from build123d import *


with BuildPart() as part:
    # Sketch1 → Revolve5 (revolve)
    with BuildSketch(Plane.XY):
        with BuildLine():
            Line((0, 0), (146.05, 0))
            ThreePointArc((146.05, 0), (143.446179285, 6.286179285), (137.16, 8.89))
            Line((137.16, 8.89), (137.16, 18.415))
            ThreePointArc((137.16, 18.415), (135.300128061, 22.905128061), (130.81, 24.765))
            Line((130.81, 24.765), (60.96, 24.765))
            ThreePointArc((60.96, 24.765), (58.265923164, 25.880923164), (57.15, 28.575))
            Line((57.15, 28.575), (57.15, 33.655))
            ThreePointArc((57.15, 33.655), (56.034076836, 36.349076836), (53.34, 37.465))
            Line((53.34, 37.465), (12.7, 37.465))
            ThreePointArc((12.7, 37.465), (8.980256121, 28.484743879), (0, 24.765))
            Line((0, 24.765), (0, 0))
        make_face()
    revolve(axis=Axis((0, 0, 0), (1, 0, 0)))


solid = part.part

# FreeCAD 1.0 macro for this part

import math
import FreeCAD as App
import Part
import Sketcher
from FreeCAD import Vector
Q = App.Units.Quantity

doc = App.newDocument("Part")
body = doc.addObject("PartDesign::Body", "Body")

# Sketch on XY plane
sketch1 = body.newObject("Sketcher::SketchObject", "Sketch")
sketch1.AttachmentSupport = (doc.getObject("XY_Plane"), [""])
sketch1.MapMode = "FlatFace"
sketch1.addGeometry([
    Part.LineSegment(Vector(0, 0, 0), Vector(146.05, 0, 0)),  # 0
    Part.ArcOfCircle(Part.Circle(Vector(137.16, 0, 0), Vector(0, 0, 1), 8.89), math.radians(0), math.radians(90)),  # 1
    Part.LineSegment(Vector(137.16, 8.89, 0), Vector(137.16, 18.415, 0)),  # 2
    Part.ArcOfCircle(Part.Circle(Vector(130.81, 18.415, 0), Vector(0, 0, 1), 6.35), math.radians(0), math.radians(90)),  # 3
    Part.LineSegment(Vector(130.81, 24.765, 0), Vector(60.96, 24.765, 0)),  # 4
    Part.ArcOfCircle(Part.Circle(Vector(60.96, 28.575, 0), Vector(0, 0, 1), 3.81), math.radians(-180), math.radians(-90)),  # 5
    Part.LineSegment(Vector(57.15, 28.575, 0), Vector(57.15, 33.655, 0)),  # 6
    Part.ArcOfCircle(Part.Circle(Vector(53.34, 33.655, 0), Vector(0, 0, 1), 3.81), math.radians(0), math.radians(90)),  # 7
    Part.LineSegment(Vector(53.34, 37.465, 0), Vector(12.7, 37.465, 0)),  # 8
    Part.ArcOfCircle(Part.Circle(Vector(0, 37.465, 0), Vector(0, 0, 1), 12.7), math.radians(-90), math.radians(0)),  # 9
    Part.LineSegment(Vector(0, 24.765, 0), Vector(0, 0, 0)),  # 10
], False)
sketch1.addConstraint([
    Sketcher.Constraint("Coincident", 0, 2, 1, 1),
    Sketcher.Constraint("Coincident", 1, 2, 2, 1),
    Sketcher.Constraint("Tangent", 2, 2, 3, 1),
    Sketcher.Constraint("Tangent", 3, 2, 4, 1),
    Sketcher.Constraint("Tangent", 4, 2, 5, 2),
    Sketcher.Constraint("Tangent", 5, 1, 6, 1),
    Sketcher.Constraint("Tangent", 6, 2, 7, 1),
    Sketcher.Constraint("Tangent", 7, 2, 8, 1),
    Sketcher.Constraint("Coincident", 8, 2, 9, 2),
    Sketcher.Constraint("Coincident", 9, 1, 10, 1),
    Sketcher.Constraint("Coincident", 10, 2, 0, 1),
    Sketcher.Constraint("Horizontal", 0),
    Sketcher.Constraint("Vertical", 2),
    Sketcher.Constraint("Horizontal", 4),
    Sketcher.Constraint("Vertical", 6),
    Sketcher.Constraint("Horizontal", 8),
    Sketcher.Constraint("Vertical", 10),
    Sketcher.Constraint("Coincident", 10, 2, -1, 1),
    Sketcher.Constraint("Equal", 5, 7),
    Sketcher.Constraint("PointOnObject", 1, 3, -1),
    Sketcher.Constraint("PointOnObject", 9, 3, -2),
    Sketcher.Constraint("Horizontal", 9, 3, 7, 2),
    Sketcher.Constraint("Horizontal", 4, 2, 9, 1),
    Sketcher.Constraint("Radius", 9, Q("0.5 in")),
    Sketcher.Constraint("Radius", 1, Q("0.35 in")),
    Sketcher.Constraint("Radius", 3, Q("0.25 in")),
    Sketcher.Constraint("Radius", 5, Q("0.15 in")),
    Sketcher.Constraint("DistanceX", 8, 2, 8, 1, Q("1.6 in")),
    Sketcher.Constraint("DistanceX", 5, 3, 1, 3, Q("3 in")),
    Sketcher.Constraint("DistanceX", 5, 3, 1, 2, Q("3 in")),
    Sketcher.Constraint("DistanceY", 2, 1, 2, 2, Q("0.375 in")),
])
revolution = body.newObject("PartDesign::Revolution", "Revolution")
revolution.Profile = sketch1
revolution.ReferenceAxis = (sketch1, ["H_Axis"])
revolution.Angle = 360

doc.recompute()
